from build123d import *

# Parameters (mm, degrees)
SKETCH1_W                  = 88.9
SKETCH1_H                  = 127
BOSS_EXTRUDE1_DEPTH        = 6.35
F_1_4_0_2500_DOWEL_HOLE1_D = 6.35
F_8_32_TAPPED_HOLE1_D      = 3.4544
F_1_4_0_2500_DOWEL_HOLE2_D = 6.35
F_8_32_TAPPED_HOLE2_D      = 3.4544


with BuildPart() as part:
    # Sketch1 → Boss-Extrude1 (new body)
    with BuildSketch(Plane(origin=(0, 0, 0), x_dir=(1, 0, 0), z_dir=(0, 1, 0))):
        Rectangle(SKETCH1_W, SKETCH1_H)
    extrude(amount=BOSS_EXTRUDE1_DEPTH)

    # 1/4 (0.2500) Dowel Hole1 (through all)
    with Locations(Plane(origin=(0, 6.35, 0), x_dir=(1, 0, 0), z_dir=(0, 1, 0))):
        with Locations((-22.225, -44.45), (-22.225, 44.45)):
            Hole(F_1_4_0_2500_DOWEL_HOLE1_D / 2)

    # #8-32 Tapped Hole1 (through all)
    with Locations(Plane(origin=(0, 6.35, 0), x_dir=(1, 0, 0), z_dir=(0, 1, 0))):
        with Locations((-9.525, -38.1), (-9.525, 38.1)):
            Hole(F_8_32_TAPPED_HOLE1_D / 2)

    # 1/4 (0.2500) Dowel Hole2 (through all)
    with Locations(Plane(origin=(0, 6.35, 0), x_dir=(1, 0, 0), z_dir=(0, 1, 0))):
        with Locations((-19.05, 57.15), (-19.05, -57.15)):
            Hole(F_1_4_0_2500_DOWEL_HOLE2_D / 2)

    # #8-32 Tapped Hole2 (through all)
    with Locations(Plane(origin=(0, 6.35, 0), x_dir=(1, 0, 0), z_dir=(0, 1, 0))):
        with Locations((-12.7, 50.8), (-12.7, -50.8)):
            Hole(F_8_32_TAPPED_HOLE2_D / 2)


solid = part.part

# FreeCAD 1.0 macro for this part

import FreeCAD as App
import Part
import Sketcher
Q = App.Units.Quantity

doc = App.newDocument("Part")
body = doc.addObject("PartDesign::Body", "Body")

# Sketch on XZ plane
sketch1 = doc.addObject("Sketcher::SketchObject", "Sketch")
body.addObject(sketch1)
sketch1.AttachmentSupport = (doc.XZ_Plane, [""])
sketch1.MapMode = "FlatFace"
sketch1.addGeometry([
    Part.LineSegment(App.Vector(-44.45, -63.5, 0), App.Vector(-44.45, 63.5, 0)),
    Part.LineSegment(App.Vector(-44.45, 63.5, 0), App.Vector(44.45, 63.5, 0)),
    Part.LineSegment(App.Vector(44.45, 63.5, 0), App.Vector(44.45, -63.5, 0)),
    Part.LineSegment(App.Vector(44.45, -63.5, 0), App.Vector(-44.45, -63.5, 0)),
], False)
sketch1.addConstraint([
    Sketcher.Constraint("Coincident", 0, 2, 1, 1),
    Sketcher.Constraint("Coincident", 1, 2, 2, 1),
    Sketcher.Constraint("Coincident", 2, 2, 3, 1),
    Sketcher.Constraint("Coincident", 3, 2, 0, 1),
    Sketcher.Constraint("Vertical", 0),
    Sketcher.Constraint("Horizontal", 1),
    Sketcher.Constraint("Vertical", 2),
    Sketcher.Constraint("Horizontal", 3),
    Sketcher.Constraint("Symmetric", 0, 2, 2, 2, -1, 1),
    Sketcher.Constraint("DistanceY", 0, 1, 0, 2, Q("5 in")),
    Sketcher.Constraint("DistanceX", 1, 1, 1, 2, Q("3.5 in")),
])
pad1 = doc.addObject("PartDesign::Pad", "Pad")
body.addObject(pad1)
pad1.Profile = sketch1
pad1.Length = Q("0.25 in")
pad1.Reversed = True

# Sketch on XZ plane
sketch2 = doc.addObject("Sketcher::SketchObject", "Sketch001")
body.addObject(sketch2)
sketch2.AttachmentSupport = (doc.XZ_Plane, [""])
sketch2.MapMode = "FlatFace"
sketch2.AttachmentOffset = App.Placement(App.Vector(0, 0, -0.25 * 25.4), App.Rotation())
sketch2.addGeometry([
    Part.Circle(App.Vector(-22.225, 44.45, 0), App.Vector(0, 0, 1), 3.175),
    Part.Circle(App.Vector(-22.225, -44.45, 0), App.Vector(0, 0, 1), 3.175),
], False)
sketch2.addConstraint([
    Sketcher.Constraint("Equal", 0, 1),
    Sketcher.Constraint("Symmetric", 0, 3, 1, 3, -1),
    Sketcher.Constraint("Diameter", 0, Q("0.25 in")),
    Sketcher.Constraint("DistanceY", 1, 3, 0, 3, Q("3.5 in")),
    Sketcher.Constraint("DistanceX", 0, 3, -1, 1, Q("0.875 in")),
])
doc.recompute()
hole = doc.addObject("PartDesign::Hole", "Hole")
body.addObject(hole)
hole.Profile = sketch2
hole.ThreadType = "None"
hole.Diameter = Q("0.25 in")
hole.DepthType = "ThroughAll"
hole.Reversed = True

# Sketch on XZ plane
sketch3 = doc.addObject("Sketcher::SketchObject", "Sketch002")
body.addObject(sketch3)
sketch3.AttachmentSupport = (doc.XZ_Plane, [""])
sketch3.MapMode = "FlatFace"
sketch3.AttachmentOffset = App.Placement(App.Vector(0, 0, -0.25 * 25.4), App.Rotation())
sketch3.addGeometry([
    Part.Circle(App.Vector(-9.525, 38.1, 0), App.Vector(0, 0, 1), 1.7272),
    Part.Circle(App.Vector(-9.525, -38.1, 0), App.Vector(0, 0, 1), 1.7272),
], False)
sketch3.addConstraint([
    Sketcher.Constraint("Equal", 0, 1),
    Sketcher.Constraint("Symmetric", 0, 3, 1, 3, -1),
    Sketcher.Constraint("Diameter", 0, Q("0.136 in")),
    Sketcher.Constraint("DistanceY", 1, 3, 0, 3, Q("3 in")),
    Sketcher.Constraint("DistanceX", 0, 3, -1, 1, Q("0.375 in")),
])
doc.recompute()
hole2 = doc.addObject("PartDesign::Hole", "Hole001")
body.addObject(hole2)
hole2.Profile = sketch3
hole2.ThreadType = "None"
hole2.Diameter = Q("0.136 in")
hole2.DepthType = "ThroughAll"
hole2.Reversed = True

# Sketch on XZ plane
sketch4 = doc.addObject("Sketcher::SketchObject", "Sketch003")
body.addObject(sketch4)
sketch4.AttachmentSupport = (doc.XZ_Plane, [""])
sketch4.MapMode = "FlatFace"
sketch4.AttachmentOffset = App.Placement(App.Vector(0, 0, -0.25 * 25.4), App.Rotation())
sketch4.addGeometry([
    Part.Circle(App.Vector(-19.05, -57.15, 0), App.Vector(0, 0, 1), 3.175),
    Part.Circle(App.Vector(-19.05, 57.15, 0), App.Vector(0, 0, 1), 3.175),
], False)
sketch4.addConstraint([
    Sketcher.Constraint("Equal", 0, 1),
    Sketcher.Constraint("Symmetric", 0, 3, 1, 3, -1),
    Sketcher.Constraint("Diameter", 0, Q("0.25 in")),
    Sketcher.Constraint("DistanceY", 0, 3, 1, 3, Q("4.5 in")),
    Sketcher.Constraint("DistanceX", 0, 3, -1, 1, Q("0.75 in")),
])
doc.recompute()
hole3 = doc.addObject("PartDesign::Hole", "Hole002")
body.addObject(hole3)
hole3.Profile = sketch4
hole3.ThreadType = "None"
hole3.Diameter = Q("0.25 in")
hole3.DepthType = "ThroughAll"
hole3.Reversed = True

# Sketch on XZ plane
sketch5 = doc.addObject("Sketcher::SketchObject", "Sketch004")
body.addObject(sketch5)
sketch5.AttachmentSupport = (doc.XZ_Plane, [""])
sketch5.MapMode = "FlatFace"
sketch5.AttachmentOffset = App.Placement(App.Vector(0, 0, -0.25 * 25.4), App.Rotation())
sketch5.addGeometry([
    Part.Circle(App.Vector(-12.7, -50.8, 0), App.Vector(0, 0, 1), 1.7272),
    Part.Circle(App.Vector(-12.7, 50.8, 0), App.Vector(0, 0, 1), 1.7272),
], False)
sketch5.addConstraint([
    Sketcher.Constraint("Equal", 0, 1),
    Sketcher.Constraint("Symmetric", 0, 3, 1, 3, -1),
    Sketcher.Constraint("Diameter", 0, Q("0.136 in")),
    Sketcher.Constraint("DistanceY", 0, 3, -1, 1, Q("2 in")),
    Sketcher.Constraint("DistanceX", 0, 3, -1, 1, Q("0.5 in")),
])
doc.recompute()
hole4 = doc.addObject("PartDesign::Hole", "Hole003")
body.addObject(hole4)
hole4.Profile = sketch5
hole4.ThreadType = "None"
hole4.Diameter = Q("0.136 in")
hole4.DepthType = "ThroughAll"
hole4.Reversed = True

doc.recompute()
